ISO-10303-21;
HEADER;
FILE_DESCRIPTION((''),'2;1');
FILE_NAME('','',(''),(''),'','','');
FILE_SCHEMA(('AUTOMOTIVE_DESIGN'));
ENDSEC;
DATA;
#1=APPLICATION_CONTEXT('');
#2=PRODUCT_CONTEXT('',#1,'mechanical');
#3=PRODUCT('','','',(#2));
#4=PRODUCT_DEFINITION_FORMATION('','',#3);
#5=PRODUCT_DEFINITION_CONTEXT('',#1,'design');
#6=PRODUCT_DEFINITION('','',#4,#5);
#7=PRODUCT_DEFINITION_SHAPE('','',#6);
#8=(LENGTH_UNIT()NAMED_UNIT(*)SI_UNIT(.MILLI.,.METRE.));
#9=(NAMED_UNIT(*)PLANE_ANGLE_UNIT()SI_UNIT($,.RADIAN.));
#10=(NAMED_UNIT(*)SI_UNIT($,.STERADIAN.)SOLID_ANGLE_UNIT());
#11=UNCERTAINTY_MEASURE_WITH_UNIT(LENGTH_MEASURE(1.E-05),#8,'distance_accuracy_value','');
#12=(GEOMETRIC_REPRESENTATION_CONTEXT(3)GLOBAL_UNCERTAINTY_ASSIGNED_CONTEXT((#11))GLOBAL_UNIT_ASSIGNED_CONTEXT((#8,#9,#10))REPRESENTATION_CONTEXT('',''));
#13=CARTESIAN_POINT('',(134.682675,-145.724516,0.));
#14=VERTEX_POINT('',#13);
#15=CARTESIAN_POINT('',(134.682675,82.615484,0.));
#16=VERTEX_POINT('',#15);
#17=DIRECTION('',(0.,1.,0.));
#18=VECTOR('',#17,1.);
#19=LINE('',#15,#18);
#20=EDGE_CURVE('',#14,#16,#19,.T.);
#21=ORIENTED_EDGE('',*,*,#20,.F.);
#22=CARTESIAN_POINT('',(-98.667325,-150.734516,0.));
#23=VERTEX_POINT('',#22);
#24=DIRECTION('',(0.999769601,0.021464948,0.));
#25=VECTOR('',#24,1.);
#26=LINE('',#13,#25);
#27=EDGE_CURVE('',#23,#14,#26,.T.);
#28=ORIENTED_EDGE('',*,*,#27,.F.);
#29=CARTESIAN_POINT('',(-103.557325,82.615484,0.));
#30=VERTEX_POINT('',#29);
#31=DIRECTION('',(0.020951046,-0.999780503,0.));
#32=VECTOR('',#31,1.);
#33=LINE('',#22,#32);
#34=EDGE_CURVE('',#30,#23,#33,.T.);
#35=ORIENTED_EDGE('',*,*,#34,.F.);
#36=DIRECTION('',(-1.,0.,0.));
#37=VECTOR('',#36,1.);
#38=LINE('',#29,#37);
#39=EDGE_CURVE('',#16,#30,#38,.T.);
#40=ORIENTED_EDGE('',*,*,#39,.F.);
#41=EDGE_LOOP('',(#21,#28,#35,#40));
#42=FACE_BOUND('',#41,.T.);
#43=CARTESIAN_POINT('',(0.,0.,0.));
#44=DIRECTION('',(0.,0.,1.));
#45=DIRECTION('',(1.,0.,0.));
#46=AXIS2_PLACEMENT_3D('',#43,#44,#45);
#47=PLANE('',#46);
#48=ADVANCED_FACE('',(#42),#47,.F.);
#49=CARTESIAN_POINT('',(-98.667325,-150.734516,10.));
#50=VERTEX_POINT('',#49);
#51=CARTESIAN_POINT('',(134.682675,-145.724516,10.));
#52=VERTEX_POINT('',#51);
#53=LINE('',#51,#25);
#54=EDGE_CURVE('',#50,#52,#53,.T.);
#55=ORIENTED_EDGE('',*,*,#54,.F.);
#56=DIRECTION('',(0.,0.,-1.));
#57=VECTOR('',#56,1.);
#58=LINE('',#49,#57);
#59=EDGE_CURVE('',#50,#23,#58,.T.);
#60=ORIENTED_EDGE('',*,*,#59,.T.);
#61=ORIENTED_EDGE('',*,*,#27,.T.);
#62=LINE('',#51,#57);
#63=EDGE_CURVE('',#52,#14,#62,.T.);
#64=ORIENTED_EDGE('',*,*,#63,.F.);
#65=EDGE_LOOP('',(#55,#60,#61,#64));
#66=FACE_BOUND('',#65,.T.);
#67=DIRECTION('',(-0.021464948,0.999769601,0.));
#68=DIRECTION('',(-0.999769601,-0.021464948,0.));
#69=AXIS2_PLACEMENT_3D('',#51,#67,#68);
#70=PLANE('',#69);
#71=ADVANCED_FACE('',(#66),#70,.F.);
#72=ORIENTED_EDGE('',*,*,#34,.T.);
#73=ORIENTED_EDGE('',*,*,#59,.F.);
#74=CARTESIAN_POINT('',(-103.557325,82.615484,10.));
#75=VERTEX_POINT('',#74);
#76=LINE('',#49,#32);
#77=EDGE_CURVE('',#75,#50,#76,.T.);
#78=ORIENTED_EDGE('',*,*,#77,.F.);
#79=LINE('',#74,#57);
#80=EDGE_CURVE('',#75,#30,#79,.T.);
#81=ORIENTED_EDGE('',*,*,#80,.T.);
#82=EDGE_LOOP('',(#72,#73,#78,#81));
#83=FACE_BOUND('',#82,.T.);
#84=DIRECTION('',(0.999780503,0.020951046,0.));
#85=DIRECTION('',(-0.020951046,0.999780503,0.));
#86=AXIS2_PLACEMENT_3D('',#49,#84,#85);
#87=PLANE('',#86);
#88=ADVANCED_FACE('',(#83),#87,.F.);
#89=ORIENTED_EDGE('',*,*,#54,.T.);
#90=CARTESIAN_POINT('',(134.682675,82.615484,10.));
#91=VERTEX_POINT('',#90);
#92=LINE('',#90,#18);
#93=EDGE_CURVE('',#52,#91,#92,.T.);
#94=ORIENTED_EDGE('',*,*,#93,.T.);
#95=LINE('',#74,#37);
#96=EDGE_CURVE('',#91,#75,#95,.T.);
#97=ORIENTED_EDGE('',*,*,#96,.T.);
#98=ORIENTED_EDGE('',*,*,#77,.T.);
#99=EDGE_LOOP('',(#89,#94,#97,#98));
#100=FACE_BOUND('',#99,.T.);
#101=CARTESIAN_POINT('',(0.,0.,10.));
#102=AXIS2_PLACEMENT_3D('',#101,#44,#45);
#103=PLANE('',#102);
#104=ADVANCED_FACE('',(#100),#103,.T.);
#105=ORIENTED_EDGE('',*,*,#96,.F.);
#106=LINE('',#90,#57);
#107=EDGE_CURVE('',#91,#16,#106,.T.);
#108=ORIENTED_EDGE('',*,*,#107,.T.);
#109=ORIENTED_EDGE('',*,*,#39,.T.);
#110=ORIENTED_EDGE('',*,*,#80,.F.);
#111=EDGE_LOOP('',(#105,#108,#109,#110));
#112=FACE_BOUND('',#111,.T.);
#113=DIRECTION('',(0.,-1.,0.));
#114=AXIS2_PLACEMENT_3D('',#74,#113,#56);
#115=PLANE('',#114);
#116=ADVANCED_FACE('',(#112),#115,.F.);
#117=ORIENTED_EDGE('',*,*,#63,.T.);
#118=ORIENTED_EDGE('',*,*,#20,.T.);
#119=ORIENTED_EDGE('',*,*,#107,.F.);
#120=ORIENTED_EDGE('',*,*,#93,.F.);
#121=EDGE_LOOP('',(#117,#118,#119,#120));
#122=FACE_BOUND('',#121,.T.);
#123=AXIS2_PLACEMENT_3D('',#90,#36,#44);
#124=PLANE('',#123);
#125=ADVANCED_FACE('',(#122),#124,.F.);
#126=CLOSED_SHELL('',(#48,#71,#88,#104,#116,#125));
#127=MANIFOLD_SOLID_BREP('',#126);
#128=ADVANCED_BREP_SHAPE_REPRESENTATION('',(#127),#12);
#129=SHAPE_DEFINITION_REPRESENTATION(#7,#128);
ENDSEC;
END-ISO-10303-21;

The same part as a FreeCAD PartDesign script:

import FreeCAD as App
import Part
import Sketcher
Q = App.Units.Quantity


def add_polygon(sketch, points):
    """Adds a closed chain of lines whose ends are joined by coincident constraints."""
    first, n = sketch.GeometryCount, len(points)
    for a, b in zip(points, points[1:] + points[:1]):
        sketch.addGeometry(Part.LineSegment(App.Vector(*a, 0), App.Vector(*b, 0)), False)
    for i in range(n):
        sketch.addConstraint(Sketcher.Constraint("Coincident", first + i, 2, first + (i + 1) % n, 1))

doc = App.newDocument("Part")
body = doc.addObject("PartDesign::Body", "Body")

# Sketch on XY plane
sketch1 = body.newObject("Sketcher::SketchObject", "Sketch")
sketch1.AttachmentSupport = (doc.getObject("XY_Plane"), [""])
sketch1.MapMode = "FlatFace"
add_polygon(sketch1, [(135, 83), (-104, 83), (-99, -151), (135, -146)])  # lines 0-3
sketch1.addConstraint(Sketcher.Constraint("Horizontal", 0))
sketch1.addConstraint(Sketcher.Constraint("Vertical", 3))
sketch1.addConstraint(Sketcher.Constraint("DistanceX", 0, 2, 0, 1, Q("238.24 mm")))
sketch1.addConstraint(Sketcher.Constraint("DistanceY", 3, 1, 3, 2, Q("228.34 mm")))
sketch1.addConstraint(Sketcher.Constraint("DistanceX", 0, 2, 1, 2, Q("4.89 mm")))
sketch1.addConstraint(Sketcher.Constraint("DistanceY", 1, 2, 0, 2, Q("233.35 mm")))
sketch1.addConstraint(Sketcher.Constraint("DistanceX", 0, 2, -1, 1, Q("103.557325 mm")))
sketch1.addConstraint(Sketcher.Constraint("DistanceY", -1, 1, 0, 2, Q("82.615484 mm")))
pad1 = body.newObject("PartDesign::Pad", "Pad")
pad1.Profile = sketch1
pad1.Length = 10

doc.recompute()
